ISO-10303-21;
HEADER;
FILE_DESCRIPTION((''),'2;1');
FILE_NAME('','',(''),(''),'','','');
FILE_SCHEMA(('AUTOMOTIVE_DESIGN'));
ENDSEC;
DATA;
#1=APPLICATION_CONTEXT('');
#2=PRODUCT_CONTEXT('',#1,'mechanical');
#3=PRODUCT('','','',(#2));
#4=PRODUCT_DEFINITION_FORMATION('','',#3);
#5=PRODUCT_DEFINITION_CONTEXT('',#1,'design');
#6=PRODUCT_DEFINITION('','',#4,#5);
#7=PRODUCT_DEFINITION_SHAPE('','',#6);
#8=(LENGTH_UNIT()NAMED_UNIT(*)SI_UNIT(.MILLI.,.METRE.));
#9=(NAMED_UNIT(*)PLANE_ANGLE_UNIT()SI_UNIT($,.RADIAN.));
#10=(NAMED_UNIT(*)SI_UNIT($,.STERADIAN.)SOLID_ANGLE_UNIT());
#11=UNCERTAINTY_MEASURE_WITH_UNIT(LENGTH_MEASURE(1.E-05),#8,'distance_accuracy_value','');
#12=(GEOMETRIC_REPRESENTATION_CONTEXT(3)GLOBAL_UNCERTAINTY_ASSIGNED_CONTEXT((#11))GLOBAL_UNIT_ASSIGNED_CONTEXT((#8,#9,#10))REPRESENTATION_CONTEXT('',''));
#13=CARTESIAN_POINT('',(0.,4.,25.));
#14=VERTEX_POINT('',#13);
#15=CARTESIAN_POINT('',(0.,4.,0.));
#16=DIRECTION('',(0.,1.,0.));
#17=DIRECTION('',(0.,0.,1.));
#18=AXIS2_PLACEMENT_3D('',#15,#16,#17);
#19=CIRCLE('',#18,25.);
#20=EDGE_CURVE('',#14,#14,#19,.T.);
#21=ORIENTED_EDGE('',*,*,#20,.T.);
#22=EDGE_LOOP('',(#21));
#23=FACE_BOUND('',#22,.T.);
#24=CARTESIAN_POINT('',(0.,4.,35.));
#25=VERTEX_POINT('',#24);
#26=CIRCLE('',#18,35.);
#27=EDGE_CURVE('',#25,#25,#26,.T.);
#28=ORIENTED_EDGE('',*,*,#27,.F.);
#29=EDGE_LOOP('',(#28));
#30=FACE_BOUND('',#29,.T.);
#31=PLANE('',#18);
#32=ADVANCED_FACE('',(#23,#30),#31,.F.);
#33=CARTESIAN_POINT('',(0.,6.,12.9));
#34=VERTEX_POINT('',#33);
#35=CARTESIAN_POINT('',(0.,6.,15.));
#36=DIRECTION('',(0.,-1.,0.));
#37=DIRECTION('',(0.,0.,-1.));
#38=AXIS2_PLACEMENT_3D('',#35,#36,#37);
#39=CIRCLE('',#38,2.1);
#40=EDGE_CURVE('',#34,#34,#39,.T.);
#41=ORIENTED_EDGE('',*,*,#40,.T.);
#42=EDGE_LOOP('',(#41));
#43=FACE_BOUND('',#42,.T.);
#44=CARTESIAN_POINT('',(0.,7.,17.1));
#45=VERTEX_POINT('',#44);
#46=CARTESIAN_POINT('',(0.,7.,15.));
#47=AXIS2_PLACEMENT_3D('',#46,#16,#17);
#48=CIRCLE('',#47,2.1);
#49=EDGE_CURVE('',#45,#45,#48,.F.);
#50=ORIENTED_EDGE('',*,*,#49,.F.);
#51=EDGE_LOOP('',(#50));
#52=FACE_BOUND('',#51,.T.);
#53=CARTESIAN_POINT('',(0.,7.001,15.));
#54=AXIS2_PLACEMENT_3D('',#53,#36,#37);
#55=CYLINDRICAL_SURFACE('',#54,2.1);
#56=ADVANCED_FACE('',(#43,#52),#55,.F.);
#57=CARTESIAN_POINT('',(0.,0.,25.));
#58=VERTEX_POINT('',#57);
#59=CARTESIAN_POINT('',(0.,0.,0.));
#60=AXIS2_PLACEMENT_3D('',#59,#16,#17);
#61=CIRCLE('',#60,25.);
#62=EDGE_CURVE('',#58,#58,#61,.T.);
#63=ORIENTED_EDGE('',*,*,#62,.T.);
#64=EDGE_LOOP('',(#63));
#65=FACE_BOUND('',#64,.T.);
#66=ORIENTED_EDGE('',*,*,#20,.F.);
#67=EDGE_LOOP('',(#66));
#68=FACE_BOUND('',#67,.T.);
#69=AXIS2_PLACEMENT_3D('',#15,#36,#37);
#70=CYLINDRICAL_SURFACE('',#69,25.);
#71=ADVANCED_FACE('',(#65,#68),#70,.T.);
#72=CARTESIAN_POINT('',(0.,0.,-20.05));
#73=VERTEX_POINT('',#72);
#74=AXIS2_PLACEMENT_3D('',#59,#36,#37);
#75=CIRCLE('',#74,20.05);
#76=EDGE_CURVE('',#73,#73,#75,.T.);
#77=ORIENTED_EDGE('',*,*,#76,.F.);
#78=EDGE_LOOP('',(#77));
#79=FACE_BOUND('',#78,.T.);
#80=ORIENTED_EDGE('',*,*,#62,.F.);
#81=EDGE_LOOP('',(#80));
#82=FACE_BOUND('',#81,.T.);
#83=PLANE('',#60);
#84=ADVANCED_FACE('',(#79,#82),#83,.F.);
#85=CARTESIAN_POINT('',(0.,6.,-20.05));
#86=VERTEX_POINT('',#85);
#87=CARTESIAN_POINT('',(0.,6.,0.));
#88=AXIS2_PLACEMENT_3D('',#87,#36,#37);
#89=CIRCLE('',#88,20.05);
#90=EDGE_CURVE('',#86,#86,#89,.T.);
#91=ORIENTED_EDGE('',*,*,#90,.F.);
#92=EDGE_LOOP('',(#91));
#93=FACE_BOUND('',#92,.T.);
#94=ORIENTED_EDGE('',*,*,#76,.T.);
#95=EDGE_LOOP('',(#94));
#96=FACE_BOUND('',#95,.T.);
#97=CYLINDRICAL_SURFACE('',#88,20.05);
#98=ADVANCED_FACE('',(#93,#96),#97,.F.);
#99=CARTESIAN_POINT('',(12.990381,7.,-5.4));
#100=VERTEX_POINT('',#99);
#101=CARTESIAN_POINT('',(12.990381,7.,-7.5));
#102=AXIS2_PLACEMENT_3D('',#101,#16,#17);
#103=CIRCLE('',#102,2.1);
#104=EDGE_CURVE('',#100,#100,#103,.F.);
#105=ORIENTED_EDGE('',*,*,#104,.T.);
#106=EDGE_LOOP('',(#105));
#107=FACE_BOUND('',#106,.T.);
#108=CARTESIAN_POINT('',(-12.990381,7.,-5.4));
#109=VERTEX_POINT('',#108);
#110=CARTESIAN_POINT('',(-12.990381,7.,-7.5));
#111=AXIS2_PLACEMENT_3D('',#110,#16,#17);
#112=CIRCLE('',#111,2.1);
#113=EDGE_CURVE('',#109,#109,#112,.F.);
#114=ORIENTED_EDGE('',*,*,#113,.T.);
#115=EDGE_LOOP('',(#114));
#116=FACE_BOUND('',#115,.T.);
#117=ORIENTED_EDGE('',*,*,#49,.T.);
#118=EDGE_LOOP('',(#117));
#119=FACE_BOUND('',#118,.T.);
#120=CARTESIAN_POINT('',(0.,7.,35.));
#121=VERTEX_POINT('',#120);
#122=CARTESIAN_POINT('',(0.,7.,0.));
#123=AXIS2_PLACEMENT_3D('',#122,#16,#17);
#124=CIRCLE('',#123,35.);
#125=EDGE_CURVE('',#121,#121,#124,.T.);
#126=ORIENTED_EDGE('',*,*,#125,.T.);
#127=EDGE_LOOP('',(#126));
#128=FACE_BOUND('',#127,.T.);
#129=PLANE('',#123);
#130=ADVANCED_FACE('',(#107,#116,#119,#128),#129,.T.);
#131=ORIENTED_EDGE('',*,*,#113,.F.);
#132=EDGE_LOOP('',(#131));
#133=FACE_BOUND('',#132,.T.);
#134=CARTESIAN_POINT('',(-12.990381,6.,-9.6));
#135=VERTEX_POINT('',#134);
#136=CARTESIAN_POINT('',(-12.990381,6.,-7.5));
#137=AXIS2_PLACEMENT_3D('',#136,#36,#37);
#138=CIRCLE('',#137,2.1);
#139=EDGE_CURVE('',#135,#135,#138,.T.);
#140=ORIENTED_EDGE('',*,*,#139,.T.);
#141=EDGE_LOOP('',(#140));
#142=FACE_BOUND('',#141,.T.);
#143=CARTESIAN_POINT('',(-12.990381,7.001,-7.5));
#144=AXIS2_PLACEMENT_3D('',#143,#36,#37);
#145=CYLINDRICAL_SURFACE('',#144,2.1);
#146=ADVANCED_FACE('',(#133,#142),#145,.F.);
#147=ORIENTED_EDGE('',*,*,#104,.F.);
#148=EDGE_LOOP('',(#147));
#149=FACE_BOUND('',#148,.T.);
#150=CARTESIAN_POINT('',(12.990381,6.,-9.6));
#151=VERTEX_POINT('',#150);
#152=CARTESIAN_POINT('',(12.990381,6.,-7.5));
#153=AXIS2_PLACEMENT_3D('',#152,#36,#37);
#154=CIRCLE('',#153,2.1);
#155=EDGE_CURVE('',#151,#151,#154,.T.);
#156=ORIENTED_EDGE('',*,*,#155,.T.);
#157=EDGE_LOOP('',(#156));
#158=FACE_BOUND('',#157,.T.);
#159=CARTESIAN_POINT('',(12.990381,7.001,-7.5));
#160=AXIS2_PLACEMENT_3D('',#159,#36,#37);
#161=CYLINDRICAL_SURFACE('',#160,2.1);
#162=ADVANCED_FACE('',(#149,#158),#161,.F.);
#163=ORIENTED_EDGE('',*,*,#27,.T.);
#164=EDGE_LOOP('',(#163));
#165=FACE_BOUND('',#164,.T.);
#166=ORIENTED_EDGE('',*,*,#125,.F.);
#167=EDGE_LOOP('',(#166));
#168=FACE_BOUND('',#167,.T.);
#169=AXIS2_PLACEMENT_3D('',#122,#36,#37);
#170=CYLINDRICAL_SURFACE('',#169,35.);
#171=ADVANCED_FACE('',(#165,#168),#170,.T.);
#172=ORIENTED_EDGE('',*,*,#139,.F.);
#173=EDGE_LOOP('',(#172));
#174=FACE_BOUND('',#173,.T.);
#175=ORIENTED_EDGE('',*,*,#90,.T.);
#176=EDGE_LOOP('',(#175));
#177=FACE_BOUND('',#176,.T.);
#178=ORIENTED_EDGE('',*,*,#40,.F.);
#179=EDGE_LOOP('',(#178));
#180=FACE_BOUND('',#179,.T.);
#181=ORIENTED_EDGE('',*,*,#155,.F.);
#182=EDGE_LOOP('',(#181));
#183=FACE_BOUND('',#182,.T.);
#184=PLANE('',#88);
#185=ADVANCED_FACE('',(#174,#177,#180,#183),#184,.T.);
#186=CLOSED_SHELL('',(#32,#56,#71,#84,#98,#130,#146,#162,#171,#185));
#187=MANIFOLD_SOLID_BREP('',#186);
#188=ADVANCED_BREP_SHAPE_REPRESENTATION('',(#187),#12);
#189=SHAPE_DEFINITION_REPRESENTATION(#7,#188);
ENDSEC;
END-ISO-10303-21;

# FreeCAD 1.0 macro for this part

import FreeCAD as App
import Part
import Sketcher
Q = App.Units.Quantity

doc = App.newDocument("Part")
body = doc.addObject("PartDesign::Body", "Body")

# Sketch on XZ plane
sketch1 = doc.addObject("Sketcher::SketchObject", "Sketch")
body.addObject(sketch1)
sketch1.AttachmentSupport = (doc.XZ_Plane, [""])
sketch1.MapMode = "FlatFace"
sketch1.addGeometry(Part.Circle(App.Vector(0, 0, 0), App.Vector(0, 0, 1), 25), False)
sketch1.addConstraint([
    Sketcher.Constraint("Coincident", 0, 3, -1, 1),
    Sketcher.Constraint("Diameter", 0, Q("50 mm")),
])
pad1 = doc.addObject("PartDesign::Pad", "Pad")
body.addObject(pad1)
pad1.Profile = sketch1
pad1.Length = 4
pad1.Reversed = True

# Sketch on XZ plane
sketch2 = doc.addObject("Sketcher::SketchObject", "Sketch001")
body.addObject(sketch2)
sketch2.AttachmentSupport = (doc.XZ_Plane, [""])
sketch2.MapMode = "FlatFace"
sketch2.AttachmentOffset = App.Placement(App.Vector(0, 0, -4), App.Rotation())
sketch2.addGeometry(Part.Circle(App.Vector(0, 0, 0), App.Vector(0, 0, 1), 35), False)
sketch2.addConstraint([
    Sketcher.Constraint("Coincident", 0, 3, -1, 1),
    Sketcher.Constraint("Diameter", 0, Q("70 mm")),
])
pad2 = doc.addObject("PartDesign::Pad", "Pad001")
body.addObject(pad2)
pad2.Profile = sketch2
pad2.Length = 3
pad2.Reversed = True

# Sketch on XZ plane
sketch3 = doc.addObject("Sketcher::SketchObject", "Sketch002")
body.addObject(sketch3)
sketch3.AttachmentSupport = (doc.XZ_Plane, [""])
sketch3.MapMode = "FlatFace"
sketch3.addGeometry(Part.Circle(App.Vector(0, 0, 0), App.Vector(0, 0, 1), 20), False)
sketch3.addConstraint([
    Sketcher.Constraint("Coincident", 0, 3, -1, 1),
    Sketcher.Constraint("Diameter", 0, Q("40.1 mm")),
])
pocket1 = doc.addObject("PartDesign::Pocket", "Pocket")
body.addObject(pocket1)
pocket1.Profile = sketch3
pocket1.Length = 6

# Sketch on XZ plane
sketch4 = doc.addObject("Sketcher::SketchObject", "Sketch003")
body.addObject(sketch4)
sketch4.AttachmentSupport = (doc.XZ_Plane, [""])
sketch4.MapMode = "FlatFace"
sketch4.AttachmentOffset = App.Placement(App.Vector(0, 0, -6), App.Rotation())
sketch4.addGeometry(Part.Circle(App.Vector(0, 15, 0), App.Vector(0, 0, 1), 2.1), False)
sketch4.addConstraint([
    Sketcher.Constraint("PointOnObject", 0, 3, -2),
    Sketcher.Constraint("Diameter", 0, Q("4.2 mm")),
    Sketcher.Constraint("DistanceY", -1, 1, 0, 3, Q("15 mm")),
])
pocket2 = doc.addObject("PartDesign::Pocket", "Pocket001")
body.addObject(pocket2)
pocket2.Profile = sketch4
pocket2.Type = "UpToFirst"

# Sketch on XZ plane
sketch5 = doc.addObject("Sketcher::SketchObject", "Sketch004")
body.addObject(sketch5)
sketch5.AttachmentSupport = (doc.XZ_Plane, [""])
sketch5.MapMode = "FlatFace"
sketch5.AttachmentOffset = App.Placement(App.Vector(0, 0, -6), App.Rotation())
sketch5.addGeometry(Part.Circle(App.Vector(-13, -7.5, 0), App.Vector(0, 0, 1), 2.1), False)
sketch5.addConstraint([
    Sketcher.Constraint("Diameter", 0, Q("4.2 mm")),
    Sketcher.Constraint("DistanceY", 0, 3, -1, 1, Q("7.5 mm")),
    Sketcher.Constraint("DistanceX", 0, 3, -1, 1, Q("12.990381 mm")),
])
pocket3 = doc.addObject("PartDesign::Pocket", "Pocket002")
body.addObject(pocket3)
pocket3.Profile = sketch5
pocket3.Type = "UpToFirst"

# Sketch on XZ plane
sketch6 = doc.addObject("Sketcher::SketchObject", "Sketch005")
body.addObject(sketch6)
sketch6.AttachmentSupport = (doc.XZ_Plane, [""])
sketch6.MapMode = "FlatFace"
sketch6.AttachmentOffset = App.Placement(App.Vector(0, 0, -6), App.Rotation())
sketch6.addGeometry(Part.Circle(App.Vector(13, -7.5, 0), App.Vector(0, 0, 1), 2.1), False)
sketch6.addConstraint([
    Sketcher.Constraint("Diameter", 0, Q("4.2 mm")),
    Sketcher.Constraint("DistanceY", 0, 3, -1, 1, Q("7.5 mm")),
    Sketcher.Constraint("DistanceX", -1, 1, 0, 3, Q("12.990381 mm")),
])
pocket4 = doc.addObject("PartDesign::Pocket", "Pocket003")
body.addObject(pocket4)
pocket4.Profile = sketch6
pocket4.Type = "UpToFirst"

doc.recompute()
